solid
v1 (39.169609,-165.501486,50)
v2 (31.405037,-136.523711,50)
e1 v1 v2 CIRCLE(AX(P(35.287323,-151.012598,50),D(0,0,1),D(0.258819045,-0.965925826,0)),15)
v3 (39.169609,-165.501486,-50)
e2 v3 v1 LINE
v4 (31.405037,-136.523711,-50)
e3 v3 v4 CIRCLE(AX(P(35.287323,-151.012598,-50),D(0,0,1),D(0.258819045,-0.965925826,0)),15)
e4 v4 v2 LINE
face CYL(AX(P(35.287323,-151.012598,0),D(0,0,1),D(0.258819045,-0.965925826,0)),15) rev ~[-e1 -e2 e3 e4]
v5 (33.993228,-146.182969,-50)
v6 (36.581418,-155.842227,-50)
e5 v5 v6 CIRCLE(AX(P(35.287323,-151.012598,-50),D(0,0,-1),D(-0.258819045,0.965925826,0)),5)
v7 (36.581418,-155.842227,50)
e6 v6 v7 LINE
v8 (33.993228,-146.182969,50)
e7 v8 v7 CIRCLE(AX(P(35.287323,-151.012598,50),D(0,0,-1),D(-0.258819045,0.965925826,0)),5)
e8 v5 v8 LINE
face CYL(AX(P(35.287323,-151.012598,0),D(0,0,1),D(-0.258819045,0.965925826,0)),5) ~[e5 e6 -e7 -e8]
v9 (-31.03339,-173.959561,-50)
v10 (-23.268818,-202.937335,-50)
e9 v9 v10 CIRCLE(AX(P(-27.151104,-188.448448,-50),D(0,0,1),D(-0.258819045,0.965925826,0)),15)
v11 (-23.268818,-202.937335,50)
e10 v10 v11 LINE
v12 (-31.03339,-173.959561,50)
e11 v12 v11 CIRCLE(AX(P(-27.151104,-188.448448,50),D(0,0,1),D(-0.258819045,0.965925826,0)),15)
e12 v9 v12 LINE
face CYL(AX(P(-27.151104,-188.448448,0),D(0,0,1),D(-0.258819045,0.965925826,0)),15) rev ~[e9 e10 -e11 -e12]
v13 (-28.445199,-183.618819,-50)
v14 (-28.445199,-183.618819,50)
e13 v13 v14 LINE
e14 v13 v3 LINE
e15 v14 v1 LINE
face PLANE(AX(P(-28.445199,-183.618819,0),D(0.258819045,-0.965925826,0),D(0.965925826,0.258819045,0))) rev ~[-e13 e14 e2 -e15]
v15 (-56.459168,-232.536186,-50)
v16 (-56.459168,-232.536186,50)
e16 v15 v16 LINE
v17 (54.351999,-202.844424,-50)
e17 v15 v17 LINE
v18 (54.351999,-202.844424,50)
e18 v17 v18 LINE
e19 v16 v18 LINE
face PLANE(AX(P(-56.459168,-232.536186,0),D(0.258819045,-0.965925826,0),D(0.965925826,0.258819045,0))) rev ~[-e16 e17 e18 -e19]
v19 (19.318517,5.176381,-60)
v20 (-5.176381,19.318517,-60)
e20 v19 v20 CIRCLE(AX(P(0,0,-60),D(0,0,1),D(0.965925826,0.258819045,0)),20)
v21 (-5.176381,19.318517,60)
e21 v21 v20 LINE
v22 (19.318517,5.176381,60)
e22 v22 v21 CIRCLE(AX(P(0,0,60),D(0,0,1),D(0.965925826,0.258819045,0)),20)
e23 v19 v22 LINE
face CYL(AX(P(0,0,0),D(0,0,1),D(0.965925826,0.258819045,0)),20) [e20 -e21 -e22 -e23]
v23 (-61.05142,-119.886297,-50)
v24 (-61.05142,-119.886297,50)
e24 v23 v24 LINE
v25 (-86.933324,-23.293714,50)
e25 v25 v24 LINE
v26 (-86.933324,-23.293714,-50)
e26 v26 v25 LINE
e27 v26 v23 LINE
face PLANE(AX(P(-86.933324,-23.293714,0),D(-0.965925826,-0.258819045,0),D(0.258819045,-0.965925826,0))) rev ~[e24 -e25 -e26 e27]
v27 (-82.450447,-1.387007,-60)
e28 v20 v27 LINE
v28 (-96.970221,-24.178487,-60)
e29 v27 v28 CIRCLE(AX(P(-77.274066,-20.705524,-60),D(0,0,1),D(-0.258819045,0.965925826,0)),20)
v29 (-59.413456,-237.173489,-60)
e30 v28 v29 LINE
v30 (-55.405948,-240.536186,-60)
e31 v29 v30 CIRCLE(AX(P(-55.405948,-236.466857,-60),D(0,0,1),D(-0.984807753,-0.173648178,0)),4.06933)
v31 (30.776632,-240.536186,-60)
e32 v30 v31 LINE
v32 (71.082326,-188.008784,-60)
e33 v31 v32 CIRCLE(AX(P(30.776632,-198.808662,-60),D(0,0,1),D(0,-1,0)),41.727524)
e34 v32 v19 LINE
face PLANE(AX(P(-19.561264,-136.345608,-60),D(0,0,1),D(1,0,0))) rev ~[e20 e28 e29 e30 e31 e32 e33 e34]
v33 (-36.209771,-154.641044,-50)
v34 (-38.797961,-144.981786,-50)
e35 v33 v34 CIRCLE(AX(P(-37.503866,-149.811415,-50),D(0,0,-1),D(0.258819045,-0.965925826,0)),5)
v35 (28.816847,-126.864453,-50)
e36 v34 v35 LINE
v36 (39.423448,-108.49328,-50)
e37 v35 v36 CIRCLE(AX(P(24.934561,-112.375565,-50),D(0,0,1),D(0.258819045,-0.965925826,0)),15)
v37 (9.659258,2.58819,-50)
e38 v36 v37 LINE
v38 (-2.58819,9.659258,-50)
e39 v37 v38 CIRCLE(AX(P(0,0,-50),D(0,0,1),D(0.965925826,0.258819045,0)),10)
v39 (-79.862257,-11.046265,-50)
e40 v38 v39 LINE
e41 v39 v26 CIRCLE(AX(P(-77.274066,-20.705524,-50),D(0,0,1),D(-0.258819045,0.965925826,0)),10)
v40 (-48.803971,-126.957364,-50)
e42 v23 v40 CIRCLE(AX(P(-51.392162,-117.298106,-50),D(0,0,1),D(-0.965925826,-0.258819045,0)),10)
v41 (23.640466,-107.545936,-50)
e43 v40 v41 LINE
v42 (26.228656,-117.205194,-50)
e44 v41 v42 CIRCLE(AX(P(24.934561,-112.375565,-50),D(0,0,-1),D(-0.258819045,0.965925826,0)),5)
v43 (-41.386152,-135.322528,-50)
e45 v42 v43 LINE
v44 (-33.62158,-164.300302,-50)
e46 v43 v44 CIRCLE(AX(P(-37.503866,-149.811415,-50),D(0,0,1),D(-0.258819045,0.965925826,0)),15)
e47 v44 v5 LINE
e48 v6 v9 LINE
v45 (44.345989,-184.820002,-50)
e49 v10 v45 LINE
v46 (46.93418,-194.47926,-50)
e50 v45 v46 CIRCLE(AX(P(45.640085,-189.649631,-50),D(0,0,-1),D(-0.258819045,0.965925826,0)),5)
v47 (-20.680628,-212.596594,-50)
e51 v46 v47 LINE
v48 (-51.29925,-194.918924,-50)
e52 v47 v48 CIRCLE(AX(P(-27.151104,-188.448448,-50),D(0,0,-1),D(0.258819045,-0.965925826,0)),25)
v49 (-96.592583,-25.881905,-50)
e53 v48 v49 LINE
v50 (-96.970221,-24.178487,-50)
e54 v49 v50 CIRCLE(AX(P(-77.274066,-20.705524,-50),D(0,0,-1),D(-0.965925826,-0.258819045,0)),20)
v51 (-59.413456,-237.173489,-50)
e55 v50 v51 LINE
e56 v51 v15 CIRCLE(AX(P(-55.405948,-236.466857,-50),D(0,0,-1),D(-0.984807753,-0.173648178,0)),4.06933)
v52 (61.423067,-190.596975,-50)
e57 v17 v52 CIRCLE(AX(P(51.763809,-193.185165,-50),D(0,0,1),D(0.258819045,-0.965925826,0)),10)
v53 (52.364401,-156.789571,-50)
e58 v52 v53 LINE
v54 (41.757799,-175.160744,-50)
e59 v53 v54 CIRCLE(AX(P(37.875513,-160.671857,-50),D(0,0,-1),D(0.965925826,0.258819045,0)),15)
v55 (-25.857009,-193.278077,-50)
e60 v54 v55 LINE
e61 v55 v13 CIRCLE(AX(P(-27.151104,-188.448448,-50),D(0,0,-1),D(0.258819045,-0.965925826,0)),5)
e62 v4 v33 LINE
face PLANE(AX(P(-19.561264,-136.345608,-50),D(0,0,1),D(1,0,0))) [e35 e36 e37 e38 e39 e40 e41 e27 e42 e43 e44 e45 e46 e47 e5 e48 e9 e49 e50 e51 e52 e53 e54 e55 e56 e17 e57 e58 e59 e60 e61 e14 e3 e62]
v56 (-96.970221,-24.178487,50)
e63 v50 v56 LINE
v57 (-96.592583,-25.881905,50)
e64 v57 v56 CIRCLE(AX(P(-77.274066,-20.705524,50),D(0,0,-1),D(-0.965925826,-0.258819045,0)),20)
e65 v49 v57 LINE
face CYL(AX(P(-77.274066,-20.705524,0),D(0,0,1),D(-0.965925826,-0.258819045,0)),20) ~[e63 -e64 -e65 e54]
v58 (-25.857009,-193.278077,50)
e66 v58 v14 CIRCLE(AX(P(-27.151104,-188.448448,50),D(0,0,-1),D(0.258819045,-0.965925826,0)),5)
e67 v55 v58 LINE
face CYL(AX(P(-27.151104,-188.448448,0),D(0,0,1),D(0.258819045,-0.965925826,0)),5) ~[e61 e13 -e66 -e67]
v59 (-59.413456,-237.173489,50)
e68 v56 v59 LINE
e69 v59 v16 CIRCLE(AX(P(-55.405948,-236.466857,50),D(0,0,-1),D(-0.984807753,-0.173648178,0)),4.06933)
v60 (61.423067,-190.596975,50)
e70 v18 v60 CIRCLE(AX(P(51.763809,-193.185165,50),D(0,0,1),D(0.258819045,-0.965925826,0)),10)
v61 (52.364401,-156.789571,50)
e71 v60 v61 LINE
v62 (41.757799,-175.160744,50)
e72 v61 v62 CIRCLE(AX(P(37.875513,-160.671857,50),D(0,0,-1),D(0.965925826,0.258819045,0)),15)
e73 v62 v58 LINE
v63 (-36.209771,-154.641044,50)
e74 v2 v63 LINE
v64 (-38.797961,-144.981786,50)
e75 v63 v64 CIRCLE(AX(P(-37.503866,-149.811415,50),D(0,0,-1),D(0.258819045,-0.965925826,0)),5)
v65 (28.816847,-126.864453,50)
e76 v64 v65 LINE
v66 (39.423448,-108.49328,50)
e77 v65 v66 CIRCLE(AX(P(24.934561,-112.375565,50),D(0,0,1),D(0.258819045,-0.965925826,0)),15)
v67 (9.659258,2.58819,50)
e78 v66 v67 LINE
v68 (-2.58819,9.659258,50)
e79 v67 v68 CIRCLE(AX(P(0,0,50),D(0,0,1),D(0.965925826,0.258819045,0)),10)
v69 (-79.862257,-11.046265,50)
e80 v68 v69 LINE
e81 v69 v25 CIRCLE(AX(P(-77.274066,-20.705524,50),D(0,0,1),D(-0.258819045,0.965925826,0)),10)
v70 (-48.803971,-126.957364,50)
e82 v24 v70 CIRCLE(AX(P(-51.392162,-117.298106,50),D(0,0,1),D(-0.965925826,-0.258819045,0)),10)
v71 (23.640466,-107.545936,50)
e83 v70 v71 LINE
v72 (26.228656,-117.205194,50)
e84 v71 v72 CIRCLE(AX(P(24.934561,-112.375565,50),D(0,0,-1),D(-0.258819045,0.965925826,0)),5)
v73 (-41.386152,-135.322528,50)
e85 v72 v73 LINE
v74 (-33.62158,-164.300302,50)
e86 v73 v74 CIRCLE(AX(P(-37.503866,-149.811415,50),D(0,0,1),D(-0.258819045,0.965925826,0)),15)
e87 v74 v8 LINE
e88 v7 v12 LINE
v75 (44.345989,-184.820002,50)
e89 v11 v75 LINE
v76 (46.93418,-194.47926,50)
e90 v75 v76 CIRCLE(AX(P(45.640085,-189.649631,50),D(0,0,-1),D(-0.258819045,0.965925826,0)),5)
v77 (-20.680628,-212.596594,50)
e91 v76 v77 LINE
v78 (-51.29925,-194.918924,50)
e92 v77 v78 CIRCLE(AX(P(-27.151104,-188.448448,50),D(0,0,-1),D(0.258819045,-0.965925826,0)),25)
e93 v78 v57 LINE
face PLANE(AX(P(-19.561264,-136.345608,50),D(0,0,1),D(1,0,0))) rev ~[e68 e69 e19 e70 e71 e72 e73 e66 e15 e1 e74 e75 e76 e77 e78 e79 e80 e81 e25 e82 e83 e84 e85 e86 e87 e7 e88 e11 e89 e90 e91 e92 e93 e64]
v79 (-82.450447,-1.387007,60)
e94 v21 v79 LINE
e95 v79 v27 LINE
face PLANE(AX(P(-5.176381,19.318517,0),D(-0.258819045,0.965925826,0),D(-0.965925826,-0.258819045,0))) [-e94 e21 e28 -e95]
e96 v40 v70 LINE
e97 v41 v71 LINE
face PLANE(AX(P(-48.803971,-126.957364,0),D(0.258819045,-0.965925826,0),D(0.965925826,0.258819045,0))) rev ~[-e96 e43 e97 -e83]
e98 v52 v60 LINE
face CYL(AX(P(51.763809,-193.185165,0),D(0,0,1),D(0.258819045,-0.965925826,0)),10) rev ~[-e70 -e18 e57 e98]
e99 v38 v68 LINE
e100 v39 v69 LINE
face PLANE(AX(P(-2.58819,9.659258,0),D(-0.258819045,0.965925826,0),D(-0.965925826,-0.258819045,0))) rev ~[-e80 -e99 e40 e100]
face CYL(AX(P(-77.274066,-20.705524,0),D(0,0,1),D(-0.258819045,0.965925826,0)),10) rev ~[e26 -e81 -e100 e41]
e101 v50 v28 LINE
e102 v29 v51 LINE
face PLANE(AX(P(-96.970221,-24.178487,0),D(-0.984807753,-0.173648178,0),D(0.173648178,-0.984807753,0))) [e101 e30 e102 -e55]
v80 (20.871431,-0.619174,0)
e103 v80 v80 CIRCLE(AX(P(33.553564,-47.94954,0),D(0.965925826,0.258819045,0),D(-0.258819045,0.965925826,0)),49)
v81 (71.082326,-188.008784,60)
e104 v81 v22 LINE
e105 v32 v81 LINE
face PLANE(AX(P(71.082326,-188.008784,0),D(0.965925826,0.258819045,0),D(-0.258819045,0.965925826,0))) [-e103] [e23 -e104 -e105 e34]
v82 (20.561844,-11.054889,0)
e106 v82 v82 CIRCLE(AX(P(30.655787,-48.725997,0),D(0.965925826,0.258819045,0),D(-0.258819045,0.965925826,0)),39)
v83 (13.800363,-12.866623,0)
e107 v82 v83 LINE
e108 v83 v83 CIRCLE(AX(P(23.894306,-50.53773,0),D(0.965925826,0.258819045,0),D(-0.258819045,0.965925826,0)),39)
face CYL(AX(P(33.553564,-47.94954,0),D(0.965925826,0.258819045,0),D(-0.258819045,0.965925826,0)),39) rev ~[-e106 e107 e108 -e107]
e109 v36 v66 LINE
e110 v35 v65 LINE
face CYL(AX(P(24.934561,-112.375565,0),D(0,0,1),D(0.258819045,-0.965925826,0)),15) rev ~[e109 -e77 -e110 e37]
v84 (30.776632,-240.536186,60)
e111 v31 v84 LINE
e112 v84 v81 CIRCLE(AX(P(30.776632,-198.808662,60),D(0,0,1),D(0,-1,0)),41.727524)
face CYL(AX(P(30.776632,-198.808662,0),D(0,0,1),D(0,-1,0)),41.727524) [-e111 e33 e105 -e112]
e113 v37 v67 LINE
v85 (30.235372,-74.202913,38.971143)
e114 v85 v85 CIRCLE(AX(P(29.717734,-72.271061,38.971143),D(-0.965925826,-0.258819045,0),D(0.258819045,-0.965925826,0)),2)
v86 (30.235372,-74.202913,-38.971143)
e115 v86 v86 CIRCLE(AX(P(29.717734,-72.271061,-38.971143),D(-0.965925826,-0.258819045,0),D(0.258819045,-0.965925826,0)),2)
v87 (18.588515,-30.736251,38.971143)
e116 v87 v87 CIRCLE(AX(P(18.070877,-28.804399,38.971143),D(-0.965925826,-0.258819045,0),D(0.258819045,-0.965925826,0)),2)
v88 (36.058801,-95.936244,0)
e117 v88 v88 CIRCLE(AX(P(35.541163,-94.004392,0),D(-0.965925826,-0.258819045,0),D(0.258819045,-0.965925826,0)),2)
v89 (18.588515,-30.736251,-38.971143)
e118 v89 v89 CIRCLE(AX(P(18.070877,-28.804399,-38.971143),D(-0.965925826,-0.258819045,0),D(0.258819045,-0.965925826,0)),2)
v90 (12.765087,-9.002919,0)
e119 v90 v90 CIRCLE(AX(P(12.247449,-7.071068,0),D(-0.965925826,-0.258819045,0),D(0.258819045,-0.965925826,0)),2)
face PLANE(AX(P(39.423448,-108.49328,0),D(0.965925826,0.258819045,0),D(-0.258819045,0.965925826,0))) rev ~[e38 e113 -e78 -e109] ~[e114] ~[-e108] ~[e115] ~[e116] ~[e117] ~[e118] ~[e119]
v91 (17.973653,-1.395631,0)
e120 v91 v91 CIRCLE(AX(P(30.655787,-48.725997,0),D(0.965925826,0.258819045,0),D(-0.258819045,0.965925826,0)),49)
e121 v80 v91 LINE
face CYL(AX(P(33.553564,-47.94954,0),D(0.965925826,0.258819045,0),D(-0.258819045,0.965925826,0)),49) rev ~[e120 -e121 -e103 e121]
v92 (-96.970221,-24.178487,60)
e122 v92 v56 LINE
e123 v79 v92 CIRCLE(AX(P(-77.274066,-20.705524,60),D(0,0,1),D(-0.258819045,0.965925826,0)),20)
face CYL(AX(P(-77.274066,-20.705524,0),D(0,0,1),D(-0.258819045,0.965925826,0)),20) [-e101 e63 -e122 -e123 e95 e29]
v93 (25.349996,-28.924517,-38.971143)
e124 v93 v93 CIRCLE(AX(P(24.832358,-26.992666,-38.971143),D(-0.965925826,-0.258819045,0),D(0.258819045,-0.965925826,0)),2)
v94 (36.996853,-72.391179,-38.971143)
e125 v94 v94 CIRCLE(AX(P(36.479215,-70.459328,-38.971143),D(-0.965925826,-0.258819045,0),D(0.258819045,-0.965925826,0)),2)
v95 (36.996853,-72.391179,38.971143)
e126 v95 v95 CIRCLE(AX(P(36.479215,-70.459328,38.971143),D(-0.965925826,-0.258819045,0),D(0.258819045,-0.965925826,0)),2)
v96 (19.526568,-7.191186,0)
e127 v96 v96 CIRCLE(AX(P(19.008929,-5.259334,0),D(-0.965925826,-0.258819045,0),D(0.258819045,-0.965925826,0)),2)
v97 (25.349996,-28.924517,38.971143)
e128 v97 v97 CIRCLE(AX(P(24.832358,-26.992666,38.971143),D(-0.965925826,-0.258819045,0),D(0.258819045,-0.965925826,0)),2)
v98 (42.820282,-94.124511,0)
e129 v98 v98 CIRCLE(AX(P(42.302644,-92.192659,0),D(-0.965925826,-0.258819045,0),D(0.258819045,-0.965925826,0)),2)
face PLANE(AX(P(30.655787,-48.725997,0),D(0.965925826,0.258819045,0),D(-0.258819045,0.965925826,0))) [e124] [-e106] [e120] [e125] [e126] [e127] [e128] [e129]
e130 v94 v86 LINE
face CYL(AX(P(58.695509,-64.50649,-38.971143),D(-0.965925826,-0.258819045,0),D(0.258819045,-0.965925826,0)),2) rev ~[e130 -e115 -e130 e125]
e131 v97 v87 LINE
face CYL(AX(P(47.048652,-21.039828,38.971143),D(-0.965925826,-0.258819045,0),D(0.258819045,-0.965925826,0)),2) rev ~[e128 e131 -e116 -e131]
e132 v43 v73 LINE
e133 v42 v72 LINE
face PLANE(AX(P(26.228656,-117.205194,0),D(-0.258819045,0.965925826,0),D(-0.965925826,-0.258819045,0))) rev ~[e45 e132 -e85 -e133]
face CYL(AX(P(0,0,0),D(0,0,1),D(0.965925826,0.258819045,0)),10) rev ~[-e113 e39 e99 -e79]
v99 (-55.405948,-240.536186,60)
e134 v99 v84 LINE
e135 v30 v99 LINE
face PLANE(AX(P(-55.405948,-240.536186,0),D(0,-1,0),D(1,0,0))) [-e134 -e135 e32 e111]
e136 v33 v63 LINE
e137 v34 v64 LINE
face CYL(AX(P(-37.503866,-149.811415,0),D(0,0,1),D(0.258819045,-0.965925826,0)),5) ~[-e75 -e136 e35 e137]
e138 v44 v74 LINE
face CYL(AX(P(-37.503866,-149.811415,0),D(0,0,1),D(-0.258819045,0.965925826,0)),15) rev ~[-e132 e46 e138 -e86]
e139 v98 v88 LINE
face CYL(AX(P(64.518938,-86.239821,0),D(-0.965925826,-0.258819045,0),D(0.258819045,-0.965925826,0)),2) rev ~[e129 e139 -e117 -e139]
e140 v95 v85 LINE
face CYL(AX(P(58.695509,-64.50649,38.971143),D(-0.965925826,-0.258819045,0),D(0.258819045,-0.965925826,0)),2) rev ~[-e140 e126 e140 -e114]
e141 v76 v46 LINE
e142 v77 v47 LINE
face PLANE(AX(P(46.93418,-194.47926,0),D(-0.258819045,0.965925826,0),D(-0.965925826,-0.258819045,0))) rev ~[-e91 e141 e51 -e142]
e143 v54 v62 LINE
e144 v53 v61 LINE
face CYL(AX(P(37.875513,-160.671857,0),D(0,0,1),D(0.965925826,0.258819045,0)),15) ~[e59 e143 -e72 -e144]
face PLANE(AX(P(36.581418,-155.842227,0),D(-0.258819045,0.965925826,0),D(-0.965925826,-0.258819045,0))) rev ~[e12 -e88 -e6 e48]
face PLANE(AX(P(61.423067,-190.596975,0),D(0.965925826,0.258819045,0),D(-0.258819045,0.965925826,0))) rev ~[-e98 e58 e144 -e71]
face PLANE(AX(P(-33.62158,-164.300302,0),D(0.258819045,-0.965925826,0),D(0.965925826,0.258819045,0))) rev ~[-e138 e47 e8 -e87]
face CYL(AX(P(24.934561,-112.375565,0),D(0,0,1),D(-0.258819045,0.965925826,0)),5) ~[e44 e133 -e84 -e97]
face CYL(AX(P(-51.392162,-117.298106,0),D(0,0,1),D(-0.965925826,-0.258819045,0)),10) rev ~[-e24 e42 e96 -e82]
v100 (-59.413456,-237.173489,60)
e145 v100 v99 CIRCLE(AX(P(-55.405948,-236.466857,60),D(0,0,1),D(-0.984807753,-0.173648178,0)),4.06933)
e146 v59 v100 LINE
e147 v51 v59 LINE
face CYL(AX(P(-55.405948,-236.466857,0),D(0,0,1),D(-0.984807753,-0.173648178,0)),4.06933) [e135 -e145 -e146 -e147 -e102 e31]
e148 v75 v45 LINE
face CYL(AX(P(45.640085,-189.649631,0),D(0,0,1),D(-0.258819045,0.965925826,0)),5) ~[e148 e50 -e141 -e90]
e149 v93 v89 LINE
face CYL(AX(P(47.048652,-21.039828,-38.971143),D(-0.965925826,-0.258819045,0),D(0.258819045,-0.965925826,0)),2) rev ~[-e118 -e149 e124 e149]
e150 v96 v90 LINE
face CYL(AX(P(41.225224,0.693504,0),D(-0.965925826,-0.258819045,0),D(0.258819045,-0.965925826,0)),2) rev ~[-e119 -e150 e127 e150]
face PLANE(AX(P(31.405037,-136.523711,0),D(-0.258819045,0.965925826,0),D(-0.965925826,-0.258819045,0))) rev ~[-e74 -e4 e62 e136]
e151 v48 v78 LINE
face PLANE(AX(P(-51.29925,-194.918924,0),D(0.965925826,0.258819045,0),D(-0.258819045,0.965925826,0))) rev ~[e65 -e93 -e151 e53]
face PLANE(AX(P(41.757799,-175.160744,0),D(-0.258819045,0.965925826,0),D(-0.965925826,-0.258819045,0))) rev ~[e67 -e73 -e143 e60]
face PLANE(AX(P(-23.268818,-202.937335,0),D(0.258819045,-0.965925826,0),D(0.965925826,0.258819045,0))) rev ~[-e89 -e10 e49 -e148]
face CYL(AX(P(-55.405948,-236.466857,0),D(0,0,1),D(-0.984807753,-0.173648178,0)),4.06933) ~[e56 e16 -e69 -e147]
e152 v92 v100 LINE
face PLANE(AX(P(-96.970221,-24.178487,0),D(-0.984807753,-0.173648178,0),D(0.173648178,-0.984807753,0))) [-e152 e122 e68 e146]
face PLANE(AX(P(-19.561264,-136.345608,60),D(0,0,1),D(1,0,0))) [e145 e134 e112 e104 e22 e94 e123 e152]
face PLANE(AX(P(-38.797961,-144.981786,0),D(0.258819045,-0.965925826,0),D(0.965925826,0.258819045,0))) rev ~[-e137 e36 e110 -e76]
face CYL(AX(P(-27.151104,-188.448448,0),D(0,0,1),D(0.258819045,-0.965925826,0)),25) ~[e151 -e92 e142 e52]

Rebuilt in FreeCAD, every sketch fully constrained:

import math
import FreeCAD as App
import Part
import Sketcher
Q = App.Units.Quantity

doc = App.newDocument("Part")
params = doc.addObject("Spreadsheet::Sheet", "Params")
for row, (alias, value) in enumerate([
    ("sketch1_radius", "20 mm"),
    ("sketch1_length", "200 mm"),
    ("sketch1_length2", "80 mm"),
    ("pad1_length", "120 mm"),
    ("sketch2_radius", "25 mm"),
    ("sketch2_radius2", "20 mm"),
    ("sketch2_radius3", "10 mm"),
    ("sketch2_radius4", "15 mm"),
    ("sketch2_length", "175 mm"),
    ("pocket1_length", "100 mm"),
    ("sketch3_diameter", "78 mm"),
    ("pocket2_length", "10 mm"),
    ("sketch4_diameter", "98 mm"),
    ("sketch4_diameter2", "78 mm"),
    ("pocket3_length", "3 mm"),
    ("sketch5_diameter", "4 mm"),
    ("hole_diameter", "4 mm"),
    ("hole_depth", "20 mm"),
], start=1):
    params.set(f"A{row}", alias)
    params.set(f"B{row}", "=" + value)
    params.setAlias(f"B{row}", alias)

body = doc.addObject("PartDesign::Body", "Body")

# Sketch on XY plane
sketch1 = body.newObject("Sketcher::SketchObject", "Sketch")
sketch1.AttachmentSupport = (doc.getObject("XY_Plane"), [""])
sketch1.MapMode = "FlatFace"
sketch1.addGeometry(Part.LineSegment(App.Vector(-97, -24.2, 0), App.Vector(-59.4, -237.2, 0)), False)
sketch1.addGeometry(Part.ArcOfCircle(Part.Circle(App.Vector(-55.4, -236.5, 0), App.Vector(0, 0, 1), 4.1), math.radians(-170), math.radians(-90)), False)
sketch1.addGeometry(Part.LineSegment(App.Vector(-55.4, -240.5, 0), App.Vector(30.8, -240.5, 0)), False)
sketch1.addGeometry(Part.ArcOfCircle(Part.Circle(App.Vector(30.8, -198.8, 0), App.Vector(0, 0, 1), 41.7), math.radians(-90), math.radians(15)), False)
sketch1.addGeometry(Part.LineSegment(App.Vector(71.1, -188, 0), App.Vector(19.3, 5.2, 0)), False)
sketch1.addGeometry(Part.ArcOfCircle(Part.Circle(App.Vector(0, 0, 0), App.Vector(0, 0, 1), 20), math.radians(15), math.radians(105)), False)
sketch1.addGeometry(Part.LineSegment(App.Vector(-5.2, 19.3, 0), App.Vector(-82.5, -1.4, 0)), False)
sketch1.addGeometry(Part.ArcOfCircle(Part.Circle(App.Vector(-77.3, -20.7, 0), App.Vector(0, 0, 1), 20), math.radians(105), math.radians(190)), False)
sketch1.addConstraint(Sketcher.Constraint("Tangent", 0, 2, 1, 1))
sketch1.addConstraint(Sketcher.Constraint("Tangent", 1, 2, 2, 1))
sketch1.addConstraint(Sketcher.Constraint("Tangent", 2, 2, 3, 1))
sketch1.addConstraint(Sketcher.Constraint("Tangent", 3, 2, 4, 1))
sketch1.addConstraint(Sketcher.Constraint("Tangent", 4, 2, 5, 1))
sketch1.addConstraint(Sketcher.Constraint("Tangent", 5, 2, 6, 1))
sketch1.addConstraint(Sketcher.Constraint("Tangent", 6, 2, 7, 1))
sketch1.addConstraint(Sketcher.Constraint("Tangent", 7, 2, 0, 1))
sketch1.addConstraint(Sketcher.Constraint("Horizontal", 2))
sketch1.addConstraint(Sketcher.Constraint("Coincident", 5, 3, -1, 1))
sketch1.addConstraint(Sketcher.Constraint("Equal", 5, 7))
sketch1.addConstraint(Sketcher.Constraint("Perpendicular", 4, 6))
sketch1.addConstraint(Sketcher.Constraint("Radius", 5, 20.0))
sketch1.addConstraint(Sketcher.Constraint("Angle", 0, Q("-80 deg")))
sketch1.addConstraint(Sketcher.Constraint("Angle", 4, Q("105 deg")))
sketch1.addConstraint(Sketcher.Constraint("Distance", 4, 200.0))
sketch1.addConstraint(Sketcher.Constraint("Distance", 6, 80.0))
sketch1.addConstraint(Sketcher.Constraint("Radius", 1, 4.06933))
sketch1.addConstraint(Sketcher.Constraint("Radius", 3, 41.727524))
sketch1.setExpression("Constraints[12]", "Params.sketch1_radius")
sketch1.setExpression("Constraints[15]", "Params.sketch1_length")
sketch1.setExpression("Constraints[16]", "Params.sketch1_length2")
pad1 = body.newObject("PartDesign::Pad", "Pad")
pad1.Profile = sketch1
pad1.setExpression("Length", "Params.pad1_length")
pad1.Midplane = True

# Sketch on XY plane
sketch2 = body.newObject("Sketcher::SketchObject", "Sketch001")
sketch2.AttachmentSupport = (doc.getObject("XY_Plane"), [""])
sketch2.MapMode = "FlatFace"
sketch2.addGeometry(Part.ArcOfCircle(Part.Circle(App.Vector(-27.2, -188.4, 0), App.Vector(0, 0, 1), 25), math.radians(-165), math.radians(-75)), False)
sketch2.addGeometry(Part.LineSegment(App.Vector(-51.3, -194.9, 0), App.Vector(-96.6, -25.9, 0)), False)
sketch2.addGeometry(Part.ArcOfCircle(Part.Circle(App.Vector(-77.3, -20.7, 0), App.Vector(0, 0, 1), 20), math.radians(-170), math.radians(-165)), False)
sketch2.addGeometry(Part.LineSegment(App.Vector(-97, -24.2, 0), App.Vector(-59.4, -237.2, 0)), False)
sketch2.addGeometry(Part.ArcOfCircle(Part.Circle(App.Vector(-55.4, -236.5, 0), App.Vector(0, 0, 1), 4.1), math.radians(105), math.radians(190)), False)
sketch2.addGeometry(Part.LineSegment(App.Vector(-56.5, -232.5, 0), App.Vector(54.4, -202.8, 0)), False)
sketch2.addGeometry(Part.ArcOfCircle(Part.Circle(App.Vector(51.8, -193.2, 0), App.Vector(0, 0, 1), 10), math.radians(-75), math.radians(15)), False)
sketch2.addGeometry(Part.LineSegment(App.Vector(61.4, -190.6, 0), App.Vector(52.4, -156.8, 0)), False)
sketch2.addGeometry(Part.ArcOfCircle(Part.Circle(App.Vector(37.9, -160.7, 0), App.Vector(0, 0, 1), 15), math.radians(-75), math.radians(15)), False)
sketch2.addGeometry(Part.LineSegment(App.Vector(41.8, -175.2, 0), App.Vector(-25.9, -193.3, 0)), False)
sketch2.addGeometry(Part.ArcOfCircle(Part.Circle(App.Vector(-27.2, -188.4, 0), App.Vector(0, 0, 1), 5), math.radians(105), math.radians(285)), False)
sketch2.addGeometry(Part.LineSegment(App.Vector(-28.4, -183.6, 0), App.Vector(39.2, -165.5, 0)), False)
sketch2.addGeometry(Part.ArcOfCircle(Part.Circle(App.Vector(35.3, -151, 0), App.Vector(0, 0, 1), 15), math.radians(-75), math.radians(105)), False)
sketch2.addGeometry(Part.LineSegment(App.Vector(31.4, -136.5, 0), App.Vector(-36.2, -154.6, 0)), False)
sketch2.addGeometry(Part.ArcOfCircle(Part.Circle(App.Vector(-37.5, -149.8, 0), App.Vector(0, 0, 1), 5), math.radians(105), math.radians(285)), False)
sketch2.addGeometry(Part.LineSegment(App.Vector(-38.8, -145, 0), App.Vector(28.8, -126.9, 0)), False)
sketch2.addGeometry(Part.ArcOfCircle(Part.Circle(App.Vector(24.9, -112.4, 0), App.Vector(0, 0, 1), 15), math.radians(-75), math.radians(15)), False)
sketch2.addGeometry(Part.LineSegment(App.Vector(39.4, -108.5, 0), App.Vector(9.7, 2.6, 0)), False)
sketch2.addGeometry(Part.ArcOfCircle(Part.Circle(App.Vector(0, 0, 0), App.Vector(0, 0, 1), 10), math.radians(15), math.radians(105)), False)
sketch2.addGeometry(Part.LineSegment(App.Vector(-2.6, 9.7, 0), App.Vector(-79.9, -11, 0)), False)
sketch2.addGeometry(Part.ArcOfCircle(Part.Circle(App.Vector(-77.3, -20.7, 0), App.Vector(0, 0, 1), 10), math.radians(105), math.radians(195)), False)
sketch2.addGeometry(Part.LineSegment(App.Vector(-86.9, -23.3, 0), App.Vector(-61.1, -119.9, 0)), False)
sketch2.addGeometry(Part.ArcOfCircle(Part.Circle(App.Vector(-51.4, -117.3, 0), App.Vector(0, 0, 1), 10), math.radians(-165), math.radians(-75)), False)
sketch2.addGeometry(Part.LineSegment(App.Vector(-48.8, -127, 0), App.Vector(23.6, -107.5, 0)), False)
sketch2.addGeometry(Part.ArcOfCircle(Part.Circle(App.Vector(24.9, -112.4, 0), App.Vector(0, 0, 1), 5), math.radians(-75), math.radians(105)), False)
sketch2.addGeometry(Part.LineSegment(App.Vector(26.2, -117.2, 0), App.Vector(-41.4, -135.3, 0)), False)
sketch2.addGeometry(Part.ArcOfCircle(Part.Circle(App.Vector(-37.5, -149.8, 0), App.Vector(0, 0, 1), 15), math.radians(105), math.radians(285)), False)
sketch2.addGeometry(Part.LineSegment(App.Vector(-33.6, -164.3, 0), App.Vector(34, -146.2, 0)), False)
sketch2.addGeometry(Part.ArcOfCircle(Part.Circle(App.Vector(35.3, -151, 0), App.Vector(0, 0, 1), 5), math.radians(-75), math.radians(105)), False)
sketch2.addGeometry(Part.LineSegment(App.Vector(36.6, -155.8, 0), App.Vector(-31, -174, 0)), False)
sketch2.addGeometry(Part.ArcOfCircle(Part.Circle(App.Vector(-27.2, -188.4, 0), App.Vector(0, 0, 1), 15), math.radians(105), math.radians(285)), False)
sketch2.addGeometry(Part.LineSegment(App.Vector(-23.3, -202.9, 0), App.Vector(44.3, -184.8, 0)), False)
sketch2.addGeometry(Part.ArcOfCircle(Part.Circle(App.Vector(45.6, -189.6, 0), App.Vector(0, 0, 1), 5), math.radians(-75), math.radians(105)), False)
sketch2.addGeometry(Part.LineSegment(App.Vector(46.9, -194.5, 0), App.Vector(-20.7, -212.6, 0)), False)
sketch2.addConstraint(Sketcher.Constraint("Tangent", 0, 1, 1, 1))
sketch2.addConstraint(Sketcher.Constraint("Tangent", 1, 2, 2, 2))
sketch2.addConstraint(Sketcher.Constraint("Tangent", 2, 1, 3, 1))
sketch2.addConstraint(Sketcher.Constraint("Tangent", 3, 2, 4, 2))
sketch2.addConstraint(Sketcher.Constraint("Tangent", 4, 1, 5, 1))
sketch2.addConstraint(Sketcher.Constraint("Tangent", 5, 2, 6, 1))
sketch2.addConstraint(Sketcher.Constraint("Tangent", 6, 2, 7, 1))
sketch2.addConstraint(Sketcher.Constraint("Tangent", 7, 2, 8, 2))
sketch2.addConstraint(Sketcher.Constraint("Tangent", 8, 1, 9, 1))
sketch2.addConstraint(Sketcher.Constraint("Tangent", 9, 2, 10, 2))
sketch2.addConstraint(Sketcher.Constraint("Tangent", 10, 1, 11, 1))
sketch2.addConstraint(Sketcher.Constraint("Tangent", 11, 2, 12, 1))
sketch2.addConstraint(Sketcher.Constraint("Tangent", 12, 2, 13, 1))
sketch2.addConstraint(Sketcher.Constraint("Tangent", 13, 2, 14, 2))
sketch2.addConstraint(Sketcher.Constraint("Tangent", 14, 1, 15, 1))
sketch2.addConstraint(Sketcher.Constraint("Tangent", 15, 2, 16, 1))
sketch2.addConstraint(Sketcher.Constraint("Tangent", 16, 2, 17, 1))
sketch2.addConstraint(Sketcher.Constraint("Tangent", 17, 2, 18, 1))
sketch2.addConstraint(Sketcher.Constraint("Tangent", 18, 2, 19, 1))
sketch2.addConstraint(Sketcher.Constraint("Tangent", 19, 2, 20, 1))
sketch2.addConstraint(Sketcher.Constraint("Tangent", 20, 2, 21, 1))
sketch2.addConstraint(Sketcher.Constraint("Tangent", 21, 2, 22, 1))
sketch2.addConstraint(Sketcher.Constraint("Tangent", 22, 2, 23, 1))
sketch2.addConstraint(Sketcher.Constraint("Tangent", 23, 2, 24, 2))
sketch2.addConstraint(Sketcher.Constraint("Tangent", 24, 1, 25, 1))
sketch2.addConstraint(Sketcher.Constraint("Tangent", 25, 2, 26, 1))
sketch2.addConstraint(Sketcher.Constraint("Tangent", 26, 2, 27, 1))
sketch2.addConstraint(Sketcher.Constraint("Tangent", 27, 2, 28, 2))
sketch2.addConstraint(Sketcher.Constraint("Tangent", 28, 1, 29, 1))
sketch2.addConstraint(Sketcher.Constraint("Tangent", 29, 2, 30, 1))
sketch2.addConstraint(Sketcher.Constraint("Tangent", 30, 2, 31, 1))
sketch2.addConstraint(Sketcher.Constraint("Tangent", 31, 2, 32, 2))
sketch2.addConstraint(Sketcher.Constraint("Tangent", 32, 1, 33, 1))
sketch2.addConstraint(Sketcher.Constraint("Tangent", 33, 2, 0, 2))
sketch2.addConstraint(Sketcher.Constraint("Coincident", 18, 3, -1, 1))
sketch2.addConstraint(Sketcher.Constraint("Coincident", 10, 3, 0, 3))
sketch2.addConstraint(Sketcher.Constraint("Coincident", 20, 3, 2, 3))
sketch2.addConstraint(Sketcher.Constraint("Coincident", 24, 3, 16, 3))
sketch2.addConstraint(Sketcher.Constraint("Coincident", 26, 3, 14, 3))
sketch2.addConstraint(Sketcher.Constraint("Coincident", 28, 3, 12, 3))
sketch2.addConstraint(Sketcher.Constraint("Coincident", 30, 3, 0, 3))
sketch2.addConstraint(Sketcher.Constraint("Equal", 8, 12))
sketch2.addConstraint(Sketcher.Constraint("Equal", 10, 14))
sketch2.addConstraint(Sketcher.Constraint("Equal", 12, 16))
sketch2.addConstraint(Sketcher.Constraint("Equal", 6, 18))
sketch2.addConstraint(Sketcher.Constraint("Equal", 18, 20))
sketch2.addConstraint(Sketcher.Constraint("Equal", 20, 22))
sketch2.addConstraint(Sketcher.Constraint("Equal", 14, 24))
sketch2.addConstraint(Sketcher.Constraint("Equal", 16, 26))
sketch2.addConstraint(Sketcher.Constraint("Equal", 24, 28))
sketch2.addConstraint(Sketcher.Constraint("Equal", 26, 30))
sketch2.addConstraint(Sketcher.Constraint("Equal", 28, 32))
sketch2.addConstraint(Sketcher.Constraint("Perpendicular", 1, 5))
sketch2.addConstraint(Sketcher.Constraint("Perpendicular", 5, 7))
sketch2.addConstraint(Sketcher.Constraint("Perpendicular", 7, 9))
sketch2.addConstraint(Sketcher.Constraint("Parallel", 9, 11))
sketch2.addConstraint(Sketcher.Constraint("Parallel", 11, 13))
sketch2.addConstraint(Sketcher.Constraint("Parallel", 13, 15))
sketch2.addConstraint(Sketcher.Constraint("Perpendicular", 15, 17))
sketch2.addConstraint(Sketcher.Constraint("Perpendicular", 17, 19))
sketch2.addConstraint(Sketcher.Constraint("Perpendicular", 19, 21))
sketch2.addConstraint(Sketcher.Constraint("Perpendicular", 21, 23))
sketch2.addConstraint(Sketcher.Constraint("Parallel", 29, 31))
sketch2.addConstraint(Sketcher.Constraint("Parallel", 31, 33))
sketch2.addConstraint(Sketcher.Constraint("Equal", 9, 11))
sketch2.addConstraint(Sketcher.Constraint("Equal", 11, 13))
sketch2.addConstraint(Sketcher.Constraint("Equal", 13, 15))
sketch2.addConstraint(Sketcher.Constraint("Equal", 29, 31))
sketch2.addConstraint(Sketcher.Constraint("Radius", 0, 25.0))
sketch2.addConstraint(Sketcher.Constraint("Radius", 2, 20.0))
sketch2.addConstraint(Sketcher.Constraint("Radius", 6, 10.0))
sketch2.addConstraint(Sketcher.Constraint("Radius", 8, 15.0))
sketch2.addConstraint(Sketcher.Constraint("Angle", 1, Q("105 deg")))
sketch2.addConstraint(Sketcher.Constraint("Angle", 3, Q("-80 deg")))
sketch2.addConstraint(Sketcher.Constraint("Distance", 1, 175.0))
sketch2.addConstraint(Sketcher.Constraint("Distance", 7, 35.0))
sketch2.addConstraint(Sketcher.Constraint("Distance", 9, 70.0))
sketch2.addConstraint(Sketcher.Constraint("Radius", 4, 4.06933))
sketch2.setExpression("Constraints[68]", "Params.sketch2_radius")
sketch2.setExpression("Constraints[69]", "Params.sketch2_radius2")
sketch2.setExpression("Constraints[70]", "Params.sketch2_radius3")
sketch2.setExpression("Constraints[71]", "Params.sketch2_radius4")
sketch2.setExpression("Constraints[74]", "Params.sketch2_length")
pocket1 = body.newObject("PartDesign::Pocket", "Pocket")
pocket1.Profile = sketch2
pocket1.setExpression("Length", "Params.pocket1_length")
pocket1.Midplane = True

# Sketch on an angled plane
sketch3 = body.newObject("Sketcher::SketchObject", "Sketch002")
sketch3.Placement = App.Placement(App.Vector(19.318517, 5.176381, 0), App.Rotation(App.Vector(-0.258819045, 0.965925826, 0), App.Vector(0, 0, 0.999999999), App.Vector(0.965925826, 0.258819045, 0), "ZXY"))
sketch3.addGeometry(Part.Circle(App.Vector(-55, 0, 0), App.Vector(0, 0, 1), 39), False)
sketch3.addConstraint(Sketcher.Constraint("PointOnObject", 0, 3, -1))
sketch3.addConstraint(Sketcher.Constraint("Diameter", 0, 78.0))
sketch3.addConstraint(Sketcher.Constraint("DistanceX", 0, 3, -1, 1, 55.0))
sketch3.setExpression("Constraints[1]", "Params.sketch3_diameter")
pocket2 = body.newObject("PartDesign::Pocket", "Pocket001")
pocket2.Profile = sketch3
pocket2.setExpression("Length", "Params.pocket2_length")

# Sketch on an angled plane
sketch4 = body.newObject("Sketcher::SketchObject", "Sketch003")
sketch4.Placement = App.Placement(App.Vector(19.318517, 5.176381, 0), App.Rotation(App.Vector(-0.258819045, 0.965925826, 0), App.Vector(0, 0, 0.999999999), App.Vector(0.965925826, 0.258819045, 0), "ZXY"))
sketch4.addGeometry(Part.Circle(App.Vector(-55, 0, 0), App.Vector(0, 0, 1), 49), False)
sketch4.addGeometry(Part.Circle(App.Vector(-55, 0, 0), App.Vector(0, 0, 1), 39), False)
sketch4.addConstraint(Sketcher.Constraint("Coincident", 1, 3, 0, 3))
sketch4.addConstraint(Sketcher.Constraint("PointOnObject", 0, 3, -1))
sketch4.addConstraint(Sketcher.Constraint("Diameter", 0, 98.0))
sketch4.addConstraint(Sketcher.Constraint("Diameter", 1, 78.0))
sketch4.addConstraint(Sketcher.Constraint("DistanceX", 0, 3, -1, 1, 55.0))
sketch4.setExpression("Constraints[2]", "Params.sketch4_diameter")
sketch4.setExpression("Constraints[3]", "Params.sketch4_diameter2")
pocket3 = body.newObject("PartDesign::Pocket", "Pocket002")
pocket3.Profile = sketch4
pocket3.setExpression("Length", "Params.pocket3_length")

# Sketch on an angled plane
sketch5 = body.newObject("Sketcher::SketchObject", "Sketch004")
sketch5.Placement = App.Placement(App.Vector(19.318517, 5.176381, 0), App.Rotation(App.Vector(-0.258819045, 0.965925826, 0), App.Vector(0, 0, 0.999999999), App.Vector(0.965925826, 0.258819045, 0), "ZXY"))
sketch5.addGeometry(Part.Circle(App.Vector(-10, 0, 0), App.Vector(0, 0, 1), 2), False)
sketch5.addGeometry(Part.Circle(App.Vector(-32.5, -39, 0), App.Vector(0, 0, 1), 2), False)
sketch5.addGeometry(Part.Circle(App.Vector(-77.5, -39, 0), App.Vector(0, 0, 1), 2), False)
sketch5.addGeometry(Part.Circle(App.Vector(-100, 0, 0), App.Vector(0, 0, 1), 2), False)
sketch5.addGeometry(Part.Circle(App.Vector(-77.5, 39, 0), App.Vector(0, 0, 1), 2), False)
sketch5.addGeometry(Part.Circle(App.Vector(-32.5, 39, 0), App.Vector(0, 0, 1), 2), False)
sketch5.addConstraint(Sketcher.Constraint("Equal", 0, 1))
sketch5.addConstraint(Sketcher.Constraint("Equal", 1, 2))
sketch5.addConstraint(Sketcher.Constraint("Equal", 2, 3))
sketch5.addConstraint(Sketcher.Constraint("Equal", 3, 4))
sketch5.addConstraint(Sketcher.Constraint("Equal", 4, 5))
sketch5.addConstraint(Sketcher.Constraint("Symmetric", 2, 3, 4, 3, -1))
sketch5.addConstraint(Sketcher.Constraint("Symmetric", 1, 3, 5, 3, -1))
sketch5.addConstraint(Sketcher.Constraint("PointOnObject", 0, 3, -1))
sketch5.addConstraint(Sketcher.Constraint("PointOnObject", 3, 3, -1))
sketch5.addConstraint(Sketcher.Constraint("Horizontal", 1, 3, 2, 3))
sketch5.addConstraint(Sketcher.Constraint("Diameter", 0, 4.0))
sketch5.addConstraint(Sketcher.Constraint("DistanceX", 0, 3, -1, 1, 10.0))
sketch5.addConstraint(Sketcher.Constraint("DistanceX", 3, 3, -1, 1, 100.0))
sketch5.addConstraint(Sketcher.Constraint("DistanceX", 2, 3, 1, 3, 45.0))
sketch5.addConstraint(Sketcher.Constraint("DistanceX", 1, 3, -1, 1, 32.5))
sketch5.addConstraint(Sketcher.Constraint("DistanceY", 1, 3, -1, 1, 38.971143))
sketch5.setExpression("Constraints[10]", "Params.sketch5_diameter")
doc.recompute()
hole = body.newObject("PartDesign::Hole", "Hole")
hole.Profile = sketch5
hole.ThreadType = "None"
hole.setExpression("Diameter", "Params.hole_diameter")
hole.DepthType = "Dimension"
hole.setExpression("Depth", "Params.hole_depth")
hole.DrillPoint = "Angled"
hole.DrillPointAngle = 118

doc.recompute()
